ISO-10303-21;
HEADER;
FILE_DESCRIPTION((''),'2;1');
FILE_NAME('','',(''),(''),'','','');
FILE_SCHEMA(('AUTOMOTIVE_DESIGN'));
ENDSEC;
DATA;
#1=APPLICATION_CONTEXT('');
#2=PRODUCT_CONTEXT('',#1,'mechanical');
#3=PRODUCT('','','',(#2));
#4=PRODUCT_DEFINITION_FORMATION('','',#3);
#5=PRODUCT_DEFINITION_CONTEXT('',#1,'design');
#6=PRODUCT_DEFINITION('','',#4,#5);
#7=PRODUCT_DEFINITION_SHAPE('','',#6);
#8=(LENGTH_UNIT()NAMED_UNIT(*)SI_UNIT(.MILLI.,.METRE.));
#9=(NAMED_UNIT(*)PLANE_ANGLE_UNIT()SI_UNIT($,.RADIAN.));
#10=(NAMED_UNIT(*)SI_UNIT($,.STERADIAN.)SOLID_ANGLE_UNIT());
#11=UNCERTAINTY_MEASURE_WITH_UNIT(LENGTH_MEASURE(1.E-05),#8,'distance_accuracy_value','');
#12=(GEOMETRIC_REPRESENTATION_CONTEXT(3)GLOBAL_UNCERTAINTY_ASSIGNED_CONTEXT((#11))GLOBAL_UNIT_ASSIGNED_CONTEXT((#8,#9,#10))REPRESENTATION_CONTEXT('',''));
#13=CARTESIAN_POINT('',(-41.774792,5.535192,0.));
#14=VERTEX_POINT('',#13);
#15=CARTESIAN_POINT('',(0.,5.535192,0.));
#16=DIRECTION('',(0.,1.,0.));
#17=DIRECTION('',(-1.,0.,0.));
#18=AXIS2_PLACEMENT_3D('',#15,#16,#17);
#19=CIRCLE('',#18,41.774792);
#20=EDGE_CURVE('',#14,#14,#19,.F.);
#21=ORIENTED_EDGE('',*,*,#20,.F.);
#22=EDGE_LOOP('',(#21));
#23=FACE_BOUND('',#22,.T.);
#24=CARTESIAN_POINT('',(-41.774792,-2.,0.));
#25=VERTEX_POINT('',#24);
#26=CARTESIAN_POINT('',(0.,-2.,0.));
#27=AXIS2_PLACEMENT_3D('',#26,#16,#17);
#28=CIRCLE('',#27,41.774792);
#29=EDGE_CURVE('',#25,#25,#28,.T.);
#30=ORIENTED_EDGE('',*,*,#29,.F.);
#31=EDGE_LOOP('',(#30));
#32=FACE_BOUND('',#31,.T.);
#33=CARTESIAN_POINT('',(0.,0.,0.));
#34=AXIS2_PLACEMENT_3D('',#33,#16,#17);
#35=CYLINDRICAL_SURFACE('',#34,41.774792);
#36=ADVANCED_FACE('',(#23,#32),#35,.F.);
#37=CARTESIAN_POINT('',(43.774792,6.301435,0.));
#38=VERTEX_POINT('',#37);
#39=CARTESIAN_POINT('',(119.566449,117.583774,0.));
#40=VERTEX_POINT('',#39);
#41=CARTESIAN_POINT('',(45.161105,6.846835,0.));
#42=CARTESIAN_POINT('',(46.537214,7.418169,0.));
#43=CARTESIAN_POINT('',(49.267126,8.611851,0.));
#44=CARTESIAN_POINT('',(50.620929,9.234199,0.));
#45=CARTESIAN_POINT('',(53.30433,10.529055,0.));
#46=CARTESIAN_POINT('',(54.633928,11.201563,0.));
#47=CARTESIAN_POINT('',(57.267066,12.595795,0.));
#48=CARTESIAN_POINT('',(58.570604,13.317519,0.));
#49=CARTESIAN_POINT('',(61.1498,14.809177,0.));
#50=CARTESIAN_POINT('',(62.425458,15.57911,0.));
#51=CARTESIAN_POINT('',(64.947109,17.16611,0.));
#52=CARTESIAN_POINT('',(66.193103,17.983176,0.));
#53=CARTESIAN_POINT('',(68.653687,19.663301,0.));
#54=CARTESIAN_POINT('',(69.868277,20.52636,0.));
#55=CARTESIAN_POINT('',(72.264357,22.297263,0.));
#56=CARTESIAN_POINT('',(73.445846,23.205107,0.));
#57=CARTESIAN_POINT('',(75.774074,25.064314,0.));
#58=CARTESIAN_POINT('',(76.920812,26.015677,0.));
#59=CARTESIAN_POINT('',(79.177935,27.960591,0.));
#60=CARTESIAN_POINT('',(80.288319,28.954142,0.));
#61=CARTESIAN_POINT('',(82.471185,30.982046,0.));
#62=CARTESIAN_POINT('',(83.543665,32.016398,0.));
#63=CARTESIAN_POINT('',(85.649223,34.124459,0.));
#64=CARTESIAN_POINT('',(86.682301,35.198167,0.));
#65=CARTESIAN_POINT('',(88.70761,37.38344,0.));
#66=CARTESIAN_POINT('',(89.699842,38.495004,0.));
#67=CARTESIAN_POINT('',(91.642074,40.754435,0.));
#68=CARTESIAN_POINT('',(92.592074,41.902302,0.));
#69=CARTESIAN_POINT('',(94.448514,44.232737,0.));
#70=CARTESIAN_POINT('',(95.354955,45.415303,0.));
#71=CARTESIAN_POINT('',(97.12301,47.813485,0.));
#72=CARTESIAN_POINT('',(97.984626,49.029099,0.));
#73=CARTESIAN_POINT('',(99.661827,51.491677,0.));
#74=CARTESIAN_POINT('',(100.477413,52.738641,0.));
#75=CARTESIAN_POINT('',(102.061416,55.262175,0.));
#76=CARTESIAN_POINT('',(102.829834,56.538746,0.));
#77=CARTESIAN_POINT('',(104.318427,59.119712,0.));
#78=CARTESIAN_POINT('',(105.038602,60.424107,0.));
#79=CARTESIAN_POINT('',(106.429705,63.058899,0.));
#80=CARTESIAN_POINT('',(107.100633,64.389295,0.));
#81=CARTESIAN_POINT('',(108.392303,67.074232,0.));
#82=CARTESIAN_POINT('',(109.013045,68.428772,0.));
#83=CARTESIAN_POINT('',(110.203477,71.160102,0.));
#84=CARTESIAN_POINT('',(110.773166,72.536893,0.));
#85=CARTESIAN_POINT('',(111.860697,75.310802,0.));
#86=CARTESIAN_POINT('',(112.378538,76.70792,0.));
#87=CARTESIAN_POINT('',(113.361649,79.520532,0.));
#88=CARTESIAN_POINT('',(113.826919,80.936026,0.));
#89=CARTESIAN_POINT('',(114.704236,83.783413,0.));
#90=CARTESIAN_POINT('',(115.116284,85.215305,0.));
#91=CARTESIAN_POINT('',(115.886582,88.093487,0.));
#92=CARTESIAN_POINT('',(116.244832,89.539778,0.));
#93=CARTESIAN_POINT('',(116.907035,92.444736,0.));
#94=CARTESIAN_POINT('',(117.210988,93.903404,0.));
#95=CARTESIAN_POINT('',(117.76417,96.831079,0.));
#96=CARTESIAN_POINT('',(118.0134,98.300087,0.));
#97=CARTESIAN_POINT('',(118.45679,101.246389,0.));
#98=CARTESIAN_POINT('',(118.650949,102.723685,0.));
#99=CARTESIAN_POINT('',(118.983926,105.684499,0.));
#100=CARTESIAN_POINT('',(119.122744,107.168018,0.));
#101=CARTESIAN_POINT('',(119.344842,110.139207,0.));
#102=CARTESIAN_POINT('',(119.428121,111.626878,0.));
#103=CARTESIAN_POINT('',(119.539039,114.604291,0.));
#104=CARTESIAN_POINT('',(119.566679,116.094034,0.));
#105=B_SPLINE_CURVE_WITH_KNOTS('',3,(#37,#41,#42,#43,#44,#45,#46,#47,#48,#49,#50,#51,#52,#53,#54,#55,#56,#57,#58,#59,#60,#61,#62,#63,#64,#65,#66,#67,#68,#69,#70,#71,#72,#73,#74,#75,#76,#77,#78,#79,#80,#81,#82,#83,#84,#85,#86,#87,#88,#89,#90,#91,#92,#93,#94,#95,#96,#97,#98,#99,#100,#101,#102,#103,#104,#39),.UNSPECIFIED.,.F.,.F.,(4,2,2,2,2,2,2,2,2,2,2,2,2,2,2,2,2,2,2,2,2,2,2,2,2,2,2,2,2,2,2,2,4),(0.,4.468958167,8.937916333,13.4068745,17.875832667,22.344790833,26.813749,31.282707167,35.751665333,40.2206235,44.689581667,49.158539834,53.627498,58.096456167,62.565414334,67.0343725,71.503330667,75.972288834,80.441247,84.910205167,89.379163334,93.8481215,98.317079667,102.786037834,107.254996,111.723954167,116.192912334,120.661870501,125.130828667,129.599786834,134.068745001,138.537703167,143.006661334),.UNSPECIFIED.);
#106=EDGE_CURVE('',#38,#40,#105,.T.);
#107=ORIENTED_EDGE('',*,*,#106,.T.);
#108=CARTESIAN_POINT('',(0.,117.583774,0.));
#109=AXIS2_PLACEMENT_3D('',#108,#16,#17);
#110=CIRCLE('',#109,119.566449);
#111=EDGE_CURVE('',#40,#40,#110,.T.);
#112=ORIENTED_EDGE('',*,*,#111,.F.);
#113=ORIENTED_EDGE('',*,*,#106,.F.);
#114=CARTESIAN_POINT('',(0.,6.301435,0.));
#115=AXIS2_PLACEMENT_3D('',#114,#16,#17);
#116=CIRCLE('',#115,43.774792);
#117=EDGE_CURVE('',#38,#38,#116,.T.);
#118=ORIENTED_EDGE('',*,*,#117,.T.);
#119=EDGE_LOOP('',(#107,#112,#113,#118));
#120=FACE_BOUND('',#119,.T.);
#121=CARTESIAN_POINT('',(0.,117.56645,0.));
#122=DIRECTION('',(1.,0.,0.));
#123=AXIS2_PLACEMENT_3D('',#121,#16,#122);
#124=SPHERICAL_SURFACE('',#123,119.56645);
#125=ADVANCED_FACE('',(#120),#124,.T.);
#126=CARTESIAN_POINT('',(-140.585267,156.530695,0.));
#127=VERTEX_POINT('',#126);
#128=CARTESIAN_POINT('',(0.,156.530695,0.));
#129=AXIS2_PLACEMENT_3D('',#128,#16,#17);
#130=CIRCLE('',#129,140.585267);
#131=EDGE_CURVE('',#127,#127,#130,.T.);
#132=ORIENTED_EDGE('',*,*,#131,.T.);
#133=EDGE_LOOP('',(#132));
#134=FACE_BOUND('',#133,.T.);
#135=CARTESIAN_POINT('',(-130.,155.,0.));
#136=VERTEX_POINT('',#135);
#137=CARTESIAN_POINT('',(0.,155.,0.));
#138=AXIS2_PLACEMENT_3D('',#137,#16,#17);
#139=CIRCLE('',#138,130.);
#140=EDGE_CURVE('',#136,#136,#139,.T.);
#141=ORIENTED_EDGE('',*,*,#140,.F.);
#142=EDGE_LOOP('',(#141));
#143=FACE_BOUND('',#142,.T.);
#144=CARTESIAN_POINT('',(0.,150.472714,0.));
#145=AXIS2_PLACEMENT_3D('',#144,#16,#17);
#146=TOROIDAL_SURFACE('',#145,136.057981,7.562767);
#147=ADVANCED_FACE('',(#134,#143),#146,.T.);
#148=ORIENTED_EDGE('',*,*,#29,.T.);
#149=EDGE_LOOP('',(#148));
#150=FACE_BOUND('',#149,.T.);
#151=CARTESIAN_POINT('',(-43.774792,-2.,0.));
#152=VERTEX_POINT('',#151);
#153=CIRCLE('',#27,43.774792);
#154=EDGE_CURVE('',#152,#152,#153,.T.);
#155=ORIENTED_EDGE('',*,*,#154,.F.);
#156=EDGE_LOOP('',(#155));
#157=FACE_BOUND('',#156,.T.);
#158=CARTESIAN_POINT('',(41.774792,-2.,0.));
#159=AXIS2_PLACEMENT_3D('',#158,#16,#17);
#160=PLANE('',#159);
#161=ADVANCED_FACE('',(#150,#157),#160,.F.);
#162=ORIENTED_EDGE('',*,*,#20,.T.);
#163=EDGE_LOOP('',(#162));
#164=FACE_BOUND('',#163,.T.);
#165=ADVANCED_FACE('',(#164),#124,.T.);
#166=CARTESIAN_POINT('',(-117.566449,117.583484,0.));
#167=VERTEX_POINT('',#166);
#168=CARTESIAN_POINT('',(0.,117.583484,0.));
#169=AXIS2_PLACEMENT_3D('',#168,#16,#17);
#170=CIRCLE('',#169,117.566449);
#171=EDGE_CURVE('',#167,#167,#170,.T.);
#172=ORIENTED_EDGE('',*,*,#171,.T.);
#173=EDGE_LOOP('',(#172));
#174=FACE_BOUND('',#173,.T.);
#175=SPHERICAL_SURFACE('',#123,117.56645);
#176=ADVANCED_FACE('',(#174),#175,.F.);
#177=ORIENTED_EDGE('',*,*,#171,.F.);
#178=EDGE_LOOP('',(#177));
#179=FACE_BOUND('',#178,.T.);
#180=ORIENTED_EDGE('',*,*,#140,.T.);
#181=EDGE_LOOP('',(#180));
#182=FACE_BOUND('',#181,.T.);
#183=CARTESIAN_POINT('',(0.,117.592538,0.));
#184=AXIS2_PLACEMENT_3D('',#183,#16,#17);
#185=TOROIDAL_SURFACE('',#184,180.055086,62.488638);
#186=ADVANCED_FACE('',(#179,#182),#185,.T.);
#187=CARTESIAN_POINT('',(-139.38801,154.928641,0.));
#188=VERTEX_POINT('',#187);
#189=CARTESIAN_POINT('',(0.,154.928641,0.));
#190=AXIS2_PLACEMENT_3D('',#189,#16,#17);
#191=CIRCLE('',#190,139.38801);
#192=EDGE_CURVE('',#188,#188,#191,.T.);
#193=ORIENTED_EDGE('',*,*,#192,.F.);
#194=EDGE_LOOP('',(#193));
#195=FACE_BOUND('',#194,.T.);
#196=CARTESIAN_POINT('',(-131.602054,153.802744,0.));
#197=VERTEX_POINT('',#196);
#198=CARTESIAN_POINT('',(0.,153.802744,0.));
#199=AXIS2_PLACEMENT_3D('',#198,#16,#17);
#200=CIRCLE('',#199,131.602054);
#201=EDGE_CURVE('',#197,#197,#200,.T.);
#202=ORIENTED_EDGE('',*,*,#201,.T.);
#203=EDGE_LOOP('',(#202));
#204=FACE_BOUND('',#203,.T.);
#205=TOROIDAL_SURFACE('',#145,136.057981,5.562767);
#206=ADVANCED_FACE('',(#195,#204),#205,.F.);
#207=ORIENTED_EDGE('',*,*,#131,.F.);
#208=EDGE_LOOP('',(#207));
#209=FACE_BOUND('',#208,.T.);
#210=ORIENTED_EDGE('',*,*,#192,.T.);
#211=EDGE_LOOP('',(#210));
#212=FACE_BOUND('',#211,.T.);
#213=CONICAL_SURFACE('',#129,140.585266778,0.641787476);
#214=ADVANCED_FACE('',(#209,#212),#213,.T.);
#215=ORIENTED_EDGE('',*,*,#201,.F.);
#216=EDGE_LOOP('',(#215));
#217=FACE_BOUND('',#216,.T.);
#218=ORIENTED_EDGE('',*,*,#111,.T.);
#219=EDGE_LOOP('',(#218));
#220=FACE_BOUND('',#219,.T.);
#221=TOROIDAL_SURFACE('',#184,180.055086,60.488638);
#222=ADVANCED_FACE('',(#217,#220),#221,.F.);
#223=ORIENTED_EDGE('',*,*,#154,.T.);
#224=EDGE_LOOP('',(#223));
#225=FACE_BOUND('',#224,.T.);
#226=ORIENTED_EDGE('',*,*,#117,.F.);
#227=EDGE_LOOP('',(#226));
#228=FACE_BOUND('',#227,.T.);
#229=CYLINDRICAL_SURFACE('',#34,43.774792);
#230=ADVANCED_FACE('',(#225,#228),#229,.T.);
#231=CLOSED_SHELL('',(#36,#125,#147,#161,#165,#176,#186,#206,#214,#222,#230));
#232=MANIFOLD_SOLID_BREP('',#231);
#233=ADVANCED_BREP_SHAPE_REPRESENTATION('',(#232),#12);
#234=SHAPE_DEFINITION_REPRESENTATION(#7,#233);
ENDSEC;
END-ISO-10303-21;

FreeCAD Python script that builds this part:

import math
import FreeCAD as App
import Part
import Sketcher
from FreeCAD import Vector
Q = App.Units.Quantity

doc = App.newDocument("Part")
body = doc.addObject("PartDesign::Body", "Body")

# Sketch on XY plane
sketch1 = body.newObject("Sketcher::SketchObject", "Sketch")
sketch1.AttachmentSupport = (doc.getObject("XY_Plane"), [""])
sketch1.MapMode = "FlatFace"
sketch1.addGeometry([
    Part.ArcOfCircle(Part.Circle(Vector(136.1, 150.5, 0), Vector(0, 0, 1), 7.6), math.radians(53), math.radians(143)),  # 0
    Part.ArcOfCircle(Part.Circle(Vector(180.1, 117.6, 0), Vector(0, 0, 1), 62.5), math.radians(143), math.radians(180)),  # 1
    Part.ArcOfCircle(Part.Circle(Vector(0, 117.6, 0), Vector(0, 0, 1), 117.6), math.radians(-90), math.radians(0)),  # 2
    Part.LineSegment(Vector(0, 0, 0), Vector(0, -2, 0)),  # 3
    Part.ArcOfCircle(Part.Circle(Vector(0, 117.6, 0), Vector(0, 0, 1), 119.6), math.radians(-90), math.radians(-70)),  # 4
    Part.LineSegment(Vector(41.8, 5.5, 0), Vector(41.8, -2, 0)),  # 5
    Part.LineSegment(Vector(41.8, -2, 0), Vector(43.8, -2, 0)),  # 6
    Part.LineSegment(Vector(43.8, -2, 0), Vector(43.8, 6.3, 0)),  # 7
    Part.ArcOfCircle(Part.Circle(Vector(0, 117.6, 0), Vector(0, 0, 1), 119.6), math.radians(-69), math.radians(0)),  # 8
    Part.ArcOfCircle(Part.Circle(Vector(180.1, 117.6, 0), Vector(0, 0, 1), 60.5), math.radians(143), math.radians(180)),  # 9
    Part.ArcOfCircle(Part.Circle(Vector(136.1, 150.5, 0), Vector(0, 0, 1), 5.6), math.radians(53), math.radians(143)),  # 10
    Part.LineSegment(Vector(139.4, 154.9, 0), Vector(140.6, 156.5, 0)),  # 11
], False)
sketch1.addConstraint([
    Sketcher.Constraint("Tangent", 0, 2, 1, 1),
    Sketcher.Constraint("Tangent", 1, 2, 2, 2),
    Sketcher.Constraint("Coincident", 2, 1, 3, 1),
    Sketcher.Constraint("Coincident", 3, 2, 4, 1),
    Sketcher.Constraint("Coincident", 4, 2, 5, 1),
    Sketcher.Constraint("Coincident", 5, 2, 6, 1),
    Sketcher.Constraint("Coincident", 6, 2, 7, 1),
    Sketcher.Constraint("Coincident", 7, 2, 8, 1),
    Sketcher.Constraint("Tangent", 8, 2, 9, 2),
    Sketcher.Constraint("Tangent", 9, 1, 10, 2),
    Sketcher.Constraint("Coincident", 10, 1, 11, 1),
    Sketcher.Constraint("Coincident", 11, 2, 0, 1),
    Sketcher.Constraint("Vertical", 3),
    Sketcher.Constraint("Vertical", 5),
    Sketcher.Constraint("Horizontal", 6),
    Sketcher.Constraint("Vertical", 7),
    Sketcher.Constraint("Coincident", 2, 1, -1, 1),
    Sketcher.Constraint("Coincident", 4, 3, 2, 3),
    Sketcher.Constraint("Coincident", 8, 3, 2, 3),
    Sketcher.Constraint("Coincident", 9, 3, 1, 3),
    Sketcher.Constraint("Coincident", 10, 3, 0, 3),
    Sketcher.Constraint("Equal", 4, 8),
    Sketcher.Constraint("PointOnObject", 2, 3, -2),
    Sketcher.Constraint("Horizontal", 3, 2, 5, 2),
    Sketcher.Constraint("Equal", 6, 3),
    Sketcher.Constraint("DistanceX", 6, 1, 6, 2, Q("2 mm")),
    Sketcher.Constraint("DistanceX", -1, 1, 0, 2, Q("130 mm")),
    Sketcher.Constraint("DistanceY", -1, 1, 0, 2, Q("155 mm")),
    Sketcher.Constraint("Radius", 2, Q("117.56645 mm")),
    Sketcher.Constraint("Radius", 0, Q("7.562767 mm")),
    Sketcher.Constraint("Radius", 1, Q("62.488638 mm")),
    Sketcher.Constraint("DistanceY", 5, 2, 5, 1, Q("7.535192 mm")),
    Sketcher.Constraint("DistanceX", -1, 1, 10, 1, Q("139.38801 mm")),
    Sketcher.Constraint("DistanceY", 10, 3, 11, 2, Q("6.057981 mm")),
])
revolution = body.newObject("PartDesign::Revolution", "Revolution")
revolution.Profile = sketch1
revolution.ReferenceAxis = (sketch1, ["V_Axis"])
revolution.Angle = 360

doc.recompute()
